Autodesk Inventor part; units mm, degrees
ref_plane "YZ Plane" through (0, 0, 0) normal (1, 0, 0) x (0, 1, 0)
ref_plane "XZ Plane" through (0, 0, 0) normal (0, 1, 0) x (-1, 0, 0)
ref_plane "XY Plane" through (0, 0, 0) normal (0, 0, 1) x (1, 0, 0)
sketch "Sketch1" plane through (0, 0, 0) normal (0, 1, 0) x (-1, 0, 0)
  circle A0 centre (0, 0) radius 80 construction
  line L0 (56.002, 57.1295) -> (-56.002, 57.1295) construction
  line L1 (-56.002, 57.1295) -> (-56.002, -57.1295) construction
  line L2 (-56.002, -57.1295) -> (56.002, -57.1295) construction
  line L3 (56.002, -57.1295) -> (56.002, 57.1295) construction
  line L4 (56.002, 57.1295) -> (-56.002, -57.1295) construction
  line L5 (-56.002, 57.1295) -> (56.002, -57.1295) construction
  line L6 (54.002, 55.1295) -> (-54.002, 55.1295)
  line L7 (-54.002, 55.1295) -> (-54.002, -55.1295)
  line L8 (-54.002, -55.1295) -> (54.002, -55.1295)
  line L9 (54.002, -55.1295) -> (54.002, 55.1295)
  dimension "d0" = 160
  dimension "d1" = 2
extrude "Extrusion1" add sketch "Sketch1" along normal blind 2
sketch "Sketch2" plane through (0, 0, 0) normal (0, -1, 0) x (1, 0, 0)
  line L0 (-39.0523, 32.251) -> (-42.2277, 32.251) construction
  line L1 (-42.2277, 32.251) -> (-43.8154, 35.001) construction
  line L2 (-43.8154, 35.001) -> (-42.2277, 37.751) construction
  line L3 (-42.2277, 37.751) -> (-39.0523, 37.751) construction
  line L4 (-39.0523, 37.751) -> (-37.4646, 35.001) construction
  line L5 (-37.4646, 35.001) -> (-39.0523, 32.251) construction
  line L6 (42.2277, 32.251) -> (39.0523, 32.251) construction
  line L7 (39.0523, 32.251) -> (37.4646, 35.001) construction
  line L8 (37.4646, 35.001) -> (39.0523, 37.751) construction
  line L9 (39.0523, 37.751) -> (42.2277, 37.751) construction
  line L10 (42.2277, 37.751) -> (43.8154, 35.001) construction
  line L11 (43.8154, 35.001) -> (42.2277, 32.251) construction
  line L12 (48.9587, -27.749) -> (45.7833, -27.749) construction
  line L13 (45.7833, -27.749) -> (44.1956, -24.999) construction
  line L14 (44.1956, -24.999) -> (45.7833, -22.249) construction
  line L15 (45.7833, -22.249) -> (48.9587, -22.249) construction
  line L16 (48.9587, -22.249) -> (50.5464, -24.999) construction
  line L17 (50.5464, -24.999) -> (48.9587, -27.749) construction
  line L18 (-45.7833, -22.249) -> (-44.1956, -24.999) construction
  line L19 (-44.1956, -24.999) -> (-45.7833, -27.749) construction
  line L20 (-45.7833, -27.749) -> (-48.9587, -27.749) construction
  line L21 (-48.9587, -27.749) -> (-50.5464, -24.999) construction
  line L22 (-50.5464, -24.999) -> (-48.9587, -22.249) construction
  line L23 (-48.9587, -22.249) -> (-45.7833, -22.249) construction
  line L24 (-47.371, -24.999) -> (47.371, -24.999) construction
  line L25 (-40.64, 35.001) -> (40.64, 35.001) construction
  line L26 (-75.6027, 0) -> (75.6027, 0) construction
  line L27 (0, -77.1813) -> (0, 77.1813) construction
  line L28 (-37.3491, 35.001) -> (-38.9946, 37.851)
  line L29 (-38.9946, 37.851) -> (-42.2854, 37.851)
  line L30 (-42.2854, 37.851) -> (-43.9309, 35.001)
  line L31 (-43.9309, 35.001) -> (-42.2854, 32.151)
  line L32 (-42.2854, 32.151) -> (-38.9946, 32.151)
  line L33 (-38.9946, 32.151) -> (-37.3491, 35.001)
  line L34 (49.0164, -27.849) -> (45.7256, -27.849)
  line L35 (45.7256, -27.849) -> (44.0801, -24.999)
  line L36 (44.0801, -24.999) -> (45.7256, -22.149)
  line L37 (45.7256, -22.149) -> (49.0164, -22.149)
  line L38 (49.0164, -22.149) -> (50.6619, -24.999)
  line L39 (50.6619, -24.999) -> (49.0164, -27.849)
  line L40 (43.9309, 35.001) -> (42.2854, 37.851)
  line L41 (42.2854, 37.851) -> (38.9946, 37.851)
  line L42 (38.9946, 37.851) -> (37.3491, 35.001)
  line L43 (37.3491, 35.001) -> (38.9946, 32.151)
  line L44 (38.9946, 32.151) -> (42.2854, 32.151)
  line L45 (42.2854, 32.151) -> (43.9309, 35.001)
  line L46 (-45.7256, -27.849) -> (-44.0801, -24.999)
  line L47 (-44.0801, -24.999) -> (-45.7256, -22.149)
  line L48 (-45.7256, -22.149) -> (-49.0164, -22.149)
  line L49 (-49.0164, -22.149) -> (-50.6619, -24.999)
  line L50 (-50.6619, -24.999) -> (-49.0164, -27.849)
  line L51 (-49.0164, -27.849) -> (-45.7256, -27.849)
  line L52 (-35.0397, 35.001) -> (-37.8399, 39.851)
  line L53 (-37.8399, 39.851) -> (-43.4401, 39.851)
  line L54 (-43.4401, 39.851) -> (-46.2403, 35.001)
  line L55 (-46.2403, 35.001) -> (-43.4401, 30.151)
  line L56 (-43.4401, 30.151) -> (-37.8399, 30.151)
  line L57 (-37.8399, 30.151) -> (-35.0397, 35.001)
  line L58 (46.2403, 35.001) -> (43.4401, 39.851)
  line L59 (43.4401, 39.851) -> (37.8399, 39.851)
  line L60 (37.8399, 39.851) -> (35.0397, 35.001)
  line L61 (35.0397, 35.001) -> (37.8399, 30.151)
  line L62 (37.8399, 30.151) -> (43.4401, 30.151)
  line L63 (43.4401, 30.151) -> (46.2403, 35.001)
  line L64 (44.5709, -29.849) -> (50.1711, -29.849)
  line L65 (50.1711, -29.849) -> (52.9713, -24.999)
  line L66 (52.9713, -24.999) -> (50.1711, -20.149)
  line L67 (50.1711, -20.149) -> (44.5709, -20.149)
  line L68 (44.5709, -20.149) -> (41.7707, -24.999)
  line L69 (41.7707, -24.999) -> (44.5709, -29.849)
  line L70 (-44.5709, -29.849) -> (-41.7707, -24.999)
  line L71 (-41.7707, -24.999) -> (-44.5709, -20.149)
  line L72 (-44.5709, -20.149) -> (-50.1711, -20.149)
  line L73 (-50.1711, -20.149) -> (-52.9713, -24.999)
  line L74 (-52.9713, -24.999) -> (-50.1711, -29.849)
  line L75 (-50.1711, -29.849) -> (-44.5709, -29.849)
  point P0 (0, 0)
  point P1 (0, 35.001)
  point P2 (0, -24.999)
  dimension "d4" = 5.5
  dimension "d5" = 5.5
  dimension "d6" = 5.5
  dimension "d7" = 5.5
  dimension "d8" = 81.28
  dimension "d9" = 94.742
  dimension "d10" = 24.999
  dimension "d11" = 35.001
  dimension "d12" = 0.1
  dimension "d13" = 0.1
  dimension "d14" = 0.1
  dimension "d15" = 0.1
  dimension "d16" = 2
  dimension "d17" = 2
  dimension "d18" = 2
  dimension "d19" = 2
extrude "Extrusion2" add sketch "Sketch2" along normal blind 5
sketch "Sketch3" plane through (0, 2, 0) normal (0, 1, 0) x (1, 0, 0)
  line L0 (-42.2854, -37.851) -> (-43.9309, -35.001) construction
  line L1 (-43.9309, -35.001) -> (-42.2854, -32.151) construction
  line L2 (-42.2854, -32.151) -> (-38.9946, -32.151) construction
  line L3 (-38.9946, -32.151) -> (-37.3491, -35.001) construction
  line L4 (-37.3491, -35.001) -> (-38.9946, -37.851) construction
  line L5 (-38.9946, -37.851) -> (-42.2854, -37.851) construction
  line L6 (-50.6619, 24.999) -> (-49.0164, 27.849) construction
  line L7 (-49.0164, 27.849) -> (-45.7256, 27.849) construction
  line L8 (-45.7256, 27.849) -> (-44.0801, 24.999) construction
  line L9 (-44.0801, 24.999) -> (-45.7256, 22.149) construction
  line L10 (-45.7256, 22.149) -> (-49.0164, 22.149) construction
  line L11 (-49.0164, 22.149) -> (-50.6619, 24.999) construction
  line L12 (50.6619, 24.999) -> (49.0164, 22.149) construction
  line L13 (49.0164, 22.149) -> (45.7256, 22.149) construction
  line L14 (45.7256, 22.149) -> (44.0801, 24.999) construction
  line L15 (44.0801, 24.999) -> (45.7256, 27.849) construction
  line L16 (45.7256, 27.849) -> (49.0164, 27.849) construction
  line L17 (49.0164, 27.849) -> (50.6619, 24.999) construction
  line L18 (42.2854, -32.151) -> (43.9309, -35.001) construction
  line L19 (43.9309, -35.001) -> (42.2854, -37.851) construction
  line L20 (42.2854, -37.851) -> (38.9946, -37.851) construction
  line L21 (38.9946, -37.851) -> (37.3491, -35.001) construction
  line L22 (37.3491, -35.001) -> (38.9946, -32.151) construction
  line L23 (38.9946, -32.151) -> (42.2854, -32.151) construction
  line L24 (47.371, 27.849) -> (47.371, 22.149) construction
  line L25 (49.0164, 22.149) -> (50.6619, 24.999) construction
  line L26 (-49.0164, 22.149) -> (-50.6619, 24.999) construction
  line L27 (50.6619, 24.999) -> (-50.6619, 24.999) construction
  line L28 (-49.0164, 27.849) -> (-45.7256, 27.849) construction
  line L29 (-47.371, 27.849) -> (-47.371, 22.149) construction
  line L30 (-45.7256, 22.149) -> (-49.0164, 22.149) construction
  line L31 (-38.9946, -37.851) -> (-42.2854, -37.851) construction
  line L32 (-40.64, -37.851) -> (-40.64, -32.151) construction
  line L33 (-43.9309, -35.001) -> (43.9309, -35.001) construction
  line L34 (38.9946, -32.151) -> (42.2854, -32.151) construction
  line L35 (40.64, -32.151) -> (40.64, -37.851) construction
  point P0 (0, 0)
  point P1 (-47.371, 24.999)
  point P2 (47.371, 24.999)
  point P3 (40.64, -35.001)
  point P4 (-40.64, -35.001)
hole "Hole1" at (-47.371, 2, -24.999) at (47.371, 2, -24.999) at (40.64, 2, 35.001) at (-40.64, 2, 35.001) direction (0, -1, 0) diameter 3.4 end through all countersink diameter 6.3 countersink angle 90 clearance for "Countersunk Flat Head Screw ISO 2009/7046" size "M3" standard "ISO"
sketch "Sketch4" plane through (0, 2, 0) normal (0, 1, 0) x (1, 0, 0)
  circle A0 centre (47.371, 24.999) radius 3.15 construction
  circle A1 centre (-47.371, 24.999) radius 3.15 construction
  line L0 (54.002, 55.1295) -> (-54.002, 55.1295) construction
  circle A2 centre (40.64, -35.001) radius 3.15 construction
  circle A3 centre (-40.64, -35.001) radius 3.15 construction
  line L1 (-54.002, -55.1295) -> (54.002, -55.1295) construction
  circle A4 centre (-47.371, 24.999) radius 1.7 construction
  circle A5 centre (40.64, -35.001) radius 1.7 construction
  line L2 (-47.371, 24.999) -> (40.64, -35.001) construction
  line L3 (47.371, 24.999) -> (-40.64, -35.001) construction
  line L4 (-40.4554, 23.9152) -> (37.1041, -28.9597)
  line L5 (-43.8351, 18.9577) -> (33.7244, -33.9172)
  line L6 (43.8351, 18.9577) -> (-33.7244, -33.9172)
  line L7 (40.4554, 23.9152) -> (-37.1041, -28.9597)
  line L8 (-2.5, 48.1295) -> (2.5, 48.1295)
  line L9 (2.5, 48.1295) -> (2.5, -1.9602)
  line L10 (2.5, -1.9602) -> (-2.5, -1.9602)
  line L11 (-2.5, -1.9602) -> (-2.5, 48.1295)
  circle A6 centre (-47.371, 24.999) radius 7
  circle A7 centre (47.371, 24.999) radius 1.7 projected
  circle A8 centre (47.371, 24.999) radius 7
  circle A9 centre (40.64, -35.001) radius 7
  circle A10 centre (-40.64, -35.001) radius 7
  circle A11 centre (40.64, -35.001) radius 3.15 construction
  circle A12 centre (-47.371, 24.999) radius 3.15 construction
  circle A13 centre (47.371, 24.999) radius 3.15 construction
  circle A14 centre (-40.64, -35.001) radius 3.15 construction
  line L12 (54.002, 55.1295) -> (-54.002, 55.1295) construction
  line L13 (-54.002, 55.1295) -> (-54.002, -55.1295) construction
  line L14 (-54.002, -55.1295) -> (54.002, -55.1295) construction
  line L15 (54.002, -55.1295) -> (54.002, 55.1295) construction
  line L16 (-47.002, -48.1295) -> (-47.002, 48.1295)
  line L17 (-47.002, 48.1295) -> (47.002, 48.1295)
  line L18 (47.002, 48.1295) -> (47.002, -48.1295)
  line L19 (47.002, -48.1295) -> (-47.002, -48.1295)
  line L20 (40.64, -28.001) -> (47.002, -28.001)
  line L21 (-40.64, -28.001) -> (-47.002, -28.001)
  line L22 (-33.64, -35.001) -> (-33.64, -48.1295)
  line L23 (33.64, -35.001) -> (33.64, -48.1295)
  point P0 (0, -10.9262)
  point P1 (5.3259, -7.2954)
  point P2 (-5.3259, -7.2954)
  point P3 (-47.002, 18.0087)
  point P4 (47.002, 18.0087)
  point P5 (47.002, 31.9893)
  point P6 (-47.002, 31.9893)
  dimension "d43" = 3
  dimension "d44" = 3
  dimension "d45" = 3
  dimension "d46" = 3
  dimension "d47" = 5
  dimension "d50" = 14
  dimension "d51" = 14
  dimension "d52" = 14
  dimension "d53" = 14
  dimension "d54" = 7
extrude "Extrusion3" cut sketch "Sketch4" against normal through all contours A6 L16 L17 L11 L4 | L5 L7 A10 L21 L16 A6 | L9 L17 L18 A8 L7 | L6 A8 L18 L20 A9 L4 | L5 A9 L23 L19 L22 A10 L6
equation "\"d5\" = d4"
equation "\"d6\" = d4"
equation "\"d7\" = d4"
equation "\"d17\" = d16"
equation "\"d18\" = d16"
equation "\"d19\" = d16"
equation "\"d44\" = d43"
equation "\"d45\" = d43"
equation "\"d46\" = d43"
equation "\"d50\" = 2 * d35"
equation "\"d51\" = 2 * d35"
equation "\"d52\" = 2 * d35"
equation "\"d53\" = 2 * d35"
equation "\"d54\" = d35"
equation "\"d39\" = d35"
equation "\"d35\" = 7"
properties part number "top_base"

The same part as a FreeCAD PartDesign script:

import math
import FreeCAD as App
import Part
import Sketcher
from FreeCAD import Vector
Q = App.Units.Quantity


def add_polygon(sketch, points):
    """Adds a closed chain of lines whose ends are joined by coincident constraints."""
    first, n = sketch.GeometryCount, len(points)
    for a, b in zip(points, points[1:] + points[:1]):
        sketch.addGeometry(Part.LineSegment(App.Vector(*a, 0), App.Vector(*b, 0)), False)
    for i in range(n):
        sketch.addConstraint(Sketcher.Constraint("Coincident", first + i, 2, first + (i + 1) % n, 1))

doc = App.newDocument("Part")
body = doc.addObject("PartDesign::Body", "Body")

sketch1 = body.newObject("Sketcher::SketchObject", "Sketch")
sketch1.AttachmentSupport = (doc.getObject("XZ_Plane"), [""])
sketch1.MapMode = "FlatFace"
add_polygon(sketch1, [(-54.002, -55.1295), (-54.002, 55.1295), (54.002, 55.1295), (54.002, -55.1295)])
sketch1.addConstraint(Sketcher.Constraint("Vertical", 0))
sketch1.addConstraint(Sketcher.Constraint("Horizontal", 1))
sketch1.addConstraint(Sketcher.Constraint("Vertical", 2))
sketch1.addConstraint(Sketcher.Constraint("Horizontal", 3))
sketch1.addConstraint(Sketcher.Constraint("Symmetric", 0, 2, 2, 2, -1, 1))
sketch1.addConstraint(Sketcher.Constraint("DistanceX", 1, 1, 1, 2, 108.004))
sketch1.addConstraint(Sketcher.Constraint("DistanceY", 0, 1, 0, 2, 110.259))
pad1 = body.newObject("PartDesign::Pad", "Pad")
pad1.Profile = sketch1
pad1.Length = 2
pad1.Reversed = True

sketch2 = body.newObject("Sketcher::SketchObject", "Sketch001")
sketch2.AttachmentSupport = (doc.getObject("XZ_Plane"), [""])
sketch2.MapMode = "FlatFace"
add_polygon(sketch2, [(-37.8399, 30.151), (-35.0397, 35.001), (-37.8399, 39.851), (-43.4401, 39.851), (-46.2403, 35.001), (-43.4401, 30.151)])
add_polygon(sketch2, [(-38.9946, 37.851), (-37.3491, 35.001), (-38.9946, 32.151), (-42.2854, 32.151), (-43.9309, 35.001), (-42.2854, 37.851)])
add_polygon(sketch2, [(43.4401, 30.151), (46.2403, 35.001), (43.4401, 39.851), (37.8399, 39.851), (35.0397, 35.001), (37.8399, 30.151)])
add_polygon(sketch2, [(42.2854, 37.851), (43.9309, 35.001), (42.2854, 32.151), (38.9946, 32.151), (37.3491, 35.001), (38.9946, 37.851)])
add_polygon(sketch2, [(41.7707, -24.999), (44.5709, -29.849), (50.1711, -29.849), (52.9713, -24.999), (50.1711, -20.149), (44.5709, -20.149)])
add_polygon(sketch2, [(50.6619, -24.999), (49.0164, -27.849), (45.7256, -27.849), (44.0801, -24.999), (45.7256, -22.149), (49.0164, -22.149)])
add_polygon(sketch2, [(-50.1711, -29.849), (-44.5709, -29.849), (-41.7707, -24.999), (-44.5709, -20.149), (-50.1711, -20.149), (-52.9713, -24.999)])
add_polygon(sketch2, [(-44.0801, -24.999), (-45.7256, -27.849), (-49.0164, -27.849), (-50.6619, -24.999), (-49.0164, -22.149), (-45.7256, -22.149)])
sketch2.addConstraint(Sketcher.Constraint("Horizontal", 2))
sketch2.addConstraint(Sketcher.Constraint("Horizontal", 5))
sketch2.addConstraint(Sketcher.Constraint("Horizontal", 8))
sketch2.addConstraint(Sketcher.Constraint("Horizontal", 11))
sketch2.addConstraint(Sketcher.Constraint("Horizontal", 14))
sketch2.addConstraint(Sketcher.Constraint("Horizontal", 17))
sketch2.addConstraint(Sketcher.Constraint("Horizontal", 20))
sketch2.addConstraint(Sketcher.Constraint("Horizontal", 23))
sketch2.addConstraint(Sketcher.Constraint("Horizontal", 25))
sketch2.addConstraint(Sketcher.Constraint("Horizontal", 28))
sketch2.addConstraint(Sketcher.Constraint("Horizontal", 31))
sketch2.addConstraint(Sketcher.Constraint("Horizontal", 34))
sketch2.addConstraint(Sketcher.Constraint("Horizontal", 36))
sketch2.addConstraint(Sketcher.Constraint("Horizontal", 39))
sketch2.addConstraint(Sketcher.Constraint("Horizontal", 43))
sketch2.addConstraint(Sketcher.Constraint("Horizontal", 46))
sketch2.addConstraint(Sketcher.Constraint("Symmetric", 3, 2, 12, 2, -2))
sketch2.addConstraint(Sketcher.Constraint("Symmetric", 2, 2, 13, 2, -2))
sketch2.addConstraint(Sketcher.Constraint("Symmetric", 0, 2, 15, 2, -2))
sketch2.addConstraint(Sketcher.Constraint("Symmetric", 5, 2, 16, 2, -2))
sketch2.addConstraint(Sketcher.Constraint("Symmetric", 9, 2, 18, 2, -2))
sketch2.addConstraint(Sketcher.Constraint("Symmetric", 8, 2, 19, 2, -2))
sketch2.addConstraint(Sketcher.Constraint("Symmetric", 6, 2, 21, 2, -2))
sketch2.addConstraint(Sketcher.Constraint("Symmetric", 11, 2, 22, 2, -2))
sketch2.addConstraint(Sketcher.Constraint("Symmetric", 24, 2, 36, 2, -2))
sketch2.addConstraint(Sketcher.Constraint("Symmetric", 29, 2, 37, 2, -2))
sketch2.addConstraint(Sketcher.Constraint("Symmetric", 28, 2, 38, 2, -2))
sketch2.addConstraint(Sketcher.Constraint("Symmetric", 26, 2, 40, 2, -2))
sketch2.addConstraint(Sketcher.Constraint("Symmetric", 31, 2, 42, 2, -2))
sketch2.addConstraint(Sketcher.Constraint("Symmetric", 35, 2, 44, 2, -2))
sketch2.addConstraint(Sketcher.Constraint("Symmetric", 34, 2, 45, 2, -2))
sketch2.addConstraint(Sketcher.Constraint("Symmetric", 32, 2, 47, 2, -2))
sketch2.addConstraint(Sketcher.Constraint("Parallel", 0, 3))
sketch2.addConstraint(Sketcher.Constraint("Parallel", 1, 4))
sketch2.addConstraint(Sketcher.Constraint("Parallel", 4, 6))
sketch2.addConstraint(Sketcher.Constraint("Parallel", 3, 7))
sketch2.addConstraint(Sketcher.Constraint("Parallel", 6, 9))
sketch2.addConstraint(Sketcher.Constraint("Parallel", 7, 10))
sketch2.addConstraint(Sketcher.Constraint("Parallel", 10, 12))
sketch2.addConstraint(Sketcher.Constraint("Parallel", 9, 13))
sketch2.addConstraint(Sketcher.Constraint("Parallel", 12, 15))
sketch2.addConstraint(Sketcher.Constraint("Parallel", 16, 18))
sketch2.addConstraint(Sketcher.Constraint("Parallel", 18, 21))
sketch2.addConstraint(Sketcher.Constraint("Parallel", 21, 24))
sketch2.addConstraint(Sketcher.Constraint("Parallel", 22, 26))
sketch2.addConstraint(Sketcher.Constraint("Parallel", 24, 27))
sketch2.addConstraint(Sketcher.Constraint("Parallel", 26, 29))
sketch2.addConstraint(Sketcher.Constraint("Parallel", 29, 30))
sketch2.addConstraint(Sketcher.Constraint("Parallel", 27, 32))
sketch2.addConstraint(Sketcher.Constraint("Parallel", 30, 33))
sketch2.addConstraint(Sketcher.Constraint("Parallel", 32, 35))
sketch2.addConstraint(Sketcher.Constraint("Parallel", 37, 40))
sketch2.addConstraint(Sketcher.Constraint("Parallel", 38, 41))
sketch2.addConstraint(Sketcher.Constraint("Parallel", 41, 44))
sketch2.addConstraint(Sketcher.Constraint("Parallel", 44, 47))
sketch2.addConstraint(Sketcher.Constraint("Horizontal", 0, 2, 3, 2))
sketch2.addConstraint(Sketcher.Constraint("Horizontal", 3, 2, 6, 2))
sketch2.addConstraint(Sketcher.Constraint("Horizontal", 6, 2, 9, 2))
sketch2.addConstraint(Sketcher.Constraint("Horizontal", 26, 2, 29, 2))
sketch2.addConstraint(Sketcher.Constraint("Horizontal", 29, 2, 32, 2))
sketch2.addConstraint(Sketcher.Constraint("Horizontal", 32, 2, 35, 2))
sketch2.addConstraint(Sketcher.Constraint("Vertical", 2, 2, 4, 2))
sketch2.addConstraint(Sketcher.Constraint("Vertical", 8, 2, 10, 2))
sketch2.addConstraint(Sketcher.Constraint("Vertical", 25, 2, 27, 2))
sketch2.addConstraint(Sketcher.Constraint("Vertical", 31, 2, 33, 2))
sketch2.addConstraint(Sketcher.Constraint("Equal", 17, 25))
sketch2.addConstraint(Sketcher.Constraint("Equal", 23, 31))
sketch2.addConstraint(Sketcher.Constraint("Equal", 16, 24))
sketch2.addConstraint(Sketcher.Constraint("Equal", 22, 30))
sketch2.addConstraint(Sketcher.Constraint("DistanceY", 5, 2, 7, 2, 2.0))
sketch2.addConstraint(Sketcher.Constraint("Angle", 0, Q("59.9995 deg")))
sketch2.addConstraint(Sketcher.Constraint("DistanceX", 0, 2, 12, 2, 81.28))
sketch2.addConstraint(Sketcher.Constraint("DistanceY", -1, 1, 0, 2, 35.001))
sketch2.addConstraint(Sketcher.Constraint("DistanceY", 26, 2, -1, 1, 24.999))
sketch2.addConstraint(Sketcher.Constraint("DistanceY", 4, 2, 2, 2, 9.7))
sketch2.addConstraint(Sketcher.Constraint("DistanceX", 1, 2, -1, 1, 37.84))
sketch2.addConstraint(Sketcher.Constraint("DistanceX", -1, 1, 32, 2, 44.08))
sketch2.addConstraint(Sketcher.Constraint("DistanceX", 18, 2, 24, 2, 0.64))
sketch2.addConstraint(Sketcher.Constraint("DistanceX", 8, 2, 8, 1, 3.2908))
sketch2.addConstraint(Sketcher.Constraint("DistanceX", 6, 2, -1, 1, 37.349))
pad2 = body.newObject("PartDesign::Pad", "Pad001")
pad2.Profile = sketch2
pad2.Length = 5

sketch3 = body.newObject("Sketcher::SketchObject", "Sketch002")
sketch3.AttachmentSupport = (doc.getObject("XZ_Plane"), [""])
sketch3.MapMode = "FlatFace"
sketch3.AttachmentOffset = App.Placement(Vector(0, 0, -2), App.Rotation())
sketch3.addGeometry(Part.Circle(Vector(-47.371, -24.999, 0), Vector(0, 0, 1), 1.7), False)
sketch3.addGeometry(Part.Circle(Vector(47.371, -24.999, 0), Vector(0, 0, 1), 1.7), False)
sketch3.addGeometry(Part.Circle(Vector(40.64, 35.001, 0), Vector(0, 0, 1), 1.7), False)
sketch3.addGeometry(Part.Circle(Vector(-40.64, 35.001, 0), Vector(0, 0, 1), 1.7), False)
sketch3.addConstraint(Sketcher.Constraint("Equal", 0, 1))
sketch3.addConstraint(Sketcher.Constraint("Equal", 1, 2))
sketch3.addConstraint(Sketcher.Constraint("Equal", 2, 3))
sketch3.addConstraint(Sketcher.Constraint("Symmetric", 0, 3, 1, 3, -2))
sketch3.addConstraint(Sketcher.Constraint("Symmetric", 2, 3, 3, 3, -2))
sketch3.addConstraint(Sketcher.Constraint("Diameter", 0, 3.4))
sketch3.addConstraint(Sketcher.Constraint("DistanceY", 1, 3, 2, 3, 60.0))
sketch3.addConstraint(Sketcher.Constraint("DistanceX", -1, 1, 2, 3, 40.64))
sketch3.addConstraint(Sketcher.Constraint("DistanceX", 0, 3, -1, 1, 47.371))
sketch3.addConstraint(Sketcher.Constraint("DistanceY", 0, 3, -1, 1, 24.999))
doc.recompute()
hole = body.newObject("PartDesign::Hole", "Hole")
hole.Profile = sketch3
hole.ThreadType = "None"
hole.Diameter = 3.4
hole.DepthType = "ThroughAll"
hole.HoleCutType = "Countersink"
hole.HoleCutDiameter = 6.3
hole.HoleCutCountersinkAngle = 90
hole.Reversed = True

sketch4 = body.newObject("Sketcher::SketchObject", "Sketch003")
sketch4.AttachmentSupport = (doc.getObject("XZ_Plane"), [""])
sketch4.MapMode = "FlatFace"
sketch4.AttachmentOffset = App.Placement(Vector(0, 0, -2), App.Rotation())
sketch4.addGeometry(Part.ArcOfCircle(Part.Circle(Vector(-47.371, -24.999, 0), Vector(0, 0, 1), 7), math.radians(-86.978293), math.radians(8.906841)), False)
sketch4.addGeometry(Part.LineSegment(Vector(-40.4554, -23.9152, 0), Vector(-2.500029, 1.960243, 0)), False)
sketch4.addGeometry(Part.LineSegment(Vector(-2.5, 1.9602, 0), Vector(-2.5, -48.1295, 0)), False)
sketch4.addGeometry(Part.LineSegment(Vector(-2.5, -48.1295, 0), Vector(-47.002, -48.1295, 0)), False)
sketch4.addGeometry(Part.LineSegment(Vector(-47.002, -48.1295, 0), Vector(-47.002, -31.989267, 0)), False)
sketch4.addGeometry(Part.LineSegment(Vector(-5.325802, 7.295374, 0), Vector(-43.8351, -18.9577, 0)), False)
sketch4.addGeometry(Part.ArcOfCircle(Part.Circle(Vector(-47.371, -24.999, 0), Vector(0, 0, 1), 7), math.radians(59.660076), math.radians(86.978293)), False)
sketch4.addGeometry(Part.LineSegment(Vector(-47.002, -18.008733, 0), Vector(-47.002, 28.001, 0)), False)
sketch4.addGeometry(Part.LineSegment(Vector(-47.002, 28.001, 0), Vector(-40.64, 28.001, 0)), False)
sketch4.addGeometry(Part.ArcOfCircle(Part.Circle(Vector(-40.64, 35.001, 0), Vector(0, 0, 1), 7), math.radians(-90), math.radians(-59.660076)), False)
sketch4.addGeometry(Part.LineSegment(Vector(-37.1041, 28.9597, 0), Vector(-5.325802, 7.295374, 0)), False)
sketch4.addGeometry(Part.LineSegment(Vector(2.5, -48.1295, 0), Vector(2.5, 1.9602, 0)), False)
sketch4.addGeometry(Part.LineSegment(Vector(2.500029, 1.960243, 0), Vector(40.4554, -23.9152, 0)), False)
sketch4.addGeometry(Part.ArcOfCircle(Part.Circle(Vector(47.371, -24.999, 0), Vector(0, 0, 1), 7), math.radians(171.093159), math.radians(266.978293)), False)
sketch4.addGeometry(Part.LineSegment(Vector(47.002, -31.989267, 0), Vector(47.002, -48.1295, 0)), False)
sketch4.addGeometry(Part.LineSegment(Vector(47.002, -48.1295, 0), Vector(2.5, -48.1295, 0)), False)
sketch4.addGeometry(Part.LineSegment(Vector(43.8351, -18.9577, 0), Vector(5.325802, 7.295374, 0)), False)
sketch4.addGeometry(Part.LineSegment(Vector(5.325802, 7.295374, 0), Vector(37.1041, 28.9597, 0)), False)
sketch4.addGeometry(Part.ArcOfCircle(Part.Circle(Vector(40.64, 35.001, 0), Vector(0, 0, 1), 7), math.radians(-120.339924), math.radians(-90)), False)
sketch4.addGeometry(Part.LineSegment(Vector(40.64, 28.001, 0), Vector(47.002, 28.001, 0)), False)
sketch4.addGeometry(Part.LineSegment(Vector(47.002, 28.001, 0), Vector(47.002, -18.008733, 0)), False)
sketch4.addGeometry(Part.ArcOfCircle(Part.Circle(Vector(47.371, -24.999, 0), Vector(0, 0, 1), 7), math.radians(93.021707), math.radians(120.339924)), False)
sketch4.addGeometry(Part.LineSegment(Vector(33.7244, 33.9172, 0), Vector(0, 10.926151, 0)), False)
sketch4.addGeometry(Part.LineSegment(Vector(0, 10.926151, 0), Vector(-33.7244, 33.9172, 0)), False)
sketch4.addGeometry(Part.ArcOfCircle(Part.Circle(Vector(-40.64, 35.001, 0), Vector(0, 0, 1), 7), math.radians(-8.906841), math.radians(0)), False)
sketch4.addGeometry(Part.LineSegment(Vector(-33.64, 35.001, 0), Vector(-33.64, 48.1295, 0)), False)
sketch4.addGeometry(Part.LineSegment(Vector(-33.64, 48.1295, 0), Vector(33.64, 48.1295, 0)), False)
sketch4.addGeometry(Part.LineSegment(Vector(33.64, 48.1295, 0), Vector(33.64, 35.001, 0)), False)
sketch4.addGeometry(Part.ArcOfCircle(Part.Circle(Vector(40.64, 35.001, 0), Vector(0, 0, 1), 7), math.radians(180), math.radians(188.906841)), False)
sketch4.addConstraint(Sketcher.Constraint("Coincident", 0, 2, 1, 1))
sketch4.addConstraint(Sketcher.Constraint("Coincident", 1, 2, 2, 1))
sketch4.addConstraint(Sketcher.Constraint("Coincident", 2, 2, 3, 1))
sketch4.addConstraint(Sketcher.Constraint("Coincident", 3, 2, 4, 1))
sketch4.addConstraint(Sketcher.Constraint("Coincident", 4, 2, 0, 1))
sketch4.addConstraint(Sketcher.Constraint("Coincident", 5, 2, 6, 1))
sketch4.addConstraint(Sketcher.Constraint("Coincident", 6, 2, 7, 1))
sketch4.addConstraint(Sketcher.Constraint("Coincident", 7, 2, 8, 1))
sketch4.addConstraint(Sketcher.Constraint("Tangent", 8, 2, 9, 1))
sketch4.addConstraint(Sketcher.Constraint("Coincident", 9, 2, 10, 1))
sketch4.addConstraint(Sketcher.Constraint("Coincident", 10, 2, 5, 1))
sketch4.addConstraint(Sketcher.Constraint("Coincident", 11, 2, 12, 1))
sketch4.addConstraint(Sketcher.Constraint("Coincident", 12, 2, 13, 1))
sketch4.addConstraint(Sketcher.Constraint("Coincident", 13, 2, 14, 1))
sketch4.addConstraint(Sketcher.Constraint("Coincident", 14, 2, 15, 1))
sketch4.addConstraint(Sketcher.Constraint("Coincident", 15, 2, 11, 1))
sketch4.addConstraint(Sketcher.Constraint("Coincident", 16, 2, 17, 1))
sketch4.addConstraint(Sketcher.Constraint("Coincident", 17, 2, 18, 1))
sketch4.addConstraint(Sketcher.Constraint("Tangent", 18, 2, 19, 1))
sketch4.addConstraint(Sketcher.Constraint("Coincident", 19, 2, 20, 1))
sketch4.addConstraint(Sketcher.Constraint("Coincident", 20, 2, 21, 1))
sketch4.addConstraint(Sketcher.Constraint("Coincident", 21, 2, 16, 1))
sketch4.addConstraint(Sketcher.Constraint("Coincident", 22, 2, 23, 1))
sketch4.addConstraint(Sketcher.Constraint("Coincident", 23, 2, 24, 1))
sketch4.addConstraint(Sketcher.Constraint("Tangent", 24, 2, 25, 1))
sketch4.addConstraint(Sketcher.Constraint("Coincident", 25, 2, 26, 1))
sketch4.addConstraint(Sketcher.Constraint("Coincident", 26, 2, 27, 1))
sketch4.addConstraint(Sketcher.Constraint("Tangent", 27, 2, 28, 1))
sketch4.addConstraint(Sketcher.Constraint("Coincident", 28, 2, 22, 1))
sketch4.addConstraint(Sketcher.Constraint("Vertical", 2))
sketch4.addConstraint(Sketcher.Constraint("Horizontal", 3))
sketch4.addConstraint(Sketcher.Constraint("Vertical", 4))
sketch4.addConstraint(Sketcher.Constraint("Vertical", 7))
sketch4.addConstraint(Sketcher.Constraint("Horizontal", 8))
sketch4.addConstraint(Sketcher.Constraint("Vertical", 11))
sketch4.addConstraint(Sketcher.Constraint("Vertical", 14))
sketch4.addConstraint(Sketcher.Constraint("Horizontal", 15))
sketch4.addConstraint(Sketcher.Constraint("Horizontal", 19))
sketch4.addConstraint(Sketcher.Constraint("Vertical", 20))
sketch4.addConstraint(Sketcher.Constraint("Vertical", 25))
sketch4.addConstraint(Sketcher.Constraint("Horizontal", 26))
sketch4.addConstraint(Sketcher.Constraint("Vertical", 27))
sketch4.addConstraint(Sketcher.Constraint("Coincident", 6, 3, 0, 3))
sketch4.addConstraint(Sketcher.Constraint("Coincident", 21, 3, 13, 3))
sketch4.addConstraint(Sketcher.Constraint("Coincident", 24, 3, 9, 3))
sketch4.addConstraint(Sketcher.Constraint("Coincident", 28, 3, 18, 3))
sketch4.addConstraint(Sketcher.Constraint("Equal", 0, 6))
sketch4.addConstraint(Sketcher.Constraint("Equal", 6, 9))
sketch4.addConstraint(Sketcher.Constraint("Equal", 9, 13))
sketch4.addConstraint(Sketcher.Constraint("Equal", 13, 18))
sketch4.addConstraint(Sketcher.Constraint("Equal", 18, 21))
sketch4.addConstraint(Sketcher.Constraint("Equal", 21, 24))
sketch4.addConstraint(Sketcher.Constraint("Equal", 24, 28))
sketch4.addConstraint(Sketcher.Constraint("Symmetric", 0, 3, 13, 3, -2))
sketch4.addConstraint(Sketcher.Constraint("Symmetric", 9, 3, 18, 3, -2))
sketch4.addConstraint(Sketcher.Constraint("Symmetric", 1, 2, 11, 2, -2))
sketch4.addConstraint(Sketcher.Constraint("Symmetric", 3, 2, 14, 2, -2))
sketch4.addConstraint(Sketcher.Constraint("Symmetric", 10, 2, 16, 2, -2))
sketch4.addConstraint(Sketcher.Constraint("PointOnObject", 22, 2, -2))
sketch4.addConstraint(Sketcher.Constraint("Parallel", 1, 5))
sketch4.addConstraint(Sketcher.Constraint("Parallel", 10, 12))
sketch4.addConstraint(Sketcher.Constraint("Parallel", 12, 16))
sketch4.addConstraint(Sketcher.Constraint("Parallel", 5, 17))
sketch4.addConstraint(Sketcher.Constraint("Parallel", 17, 22))
sketch4.addConstraint(Sketcher.Constraint("Parallel", 16, 23))
sketch4.addConstraint(Sketcher.Constraint("Horizontal", 0, 2, 12, 2))
sketch4.addConstraint(Sketcher.Constraint("Horizontal", 6, 2, 20, 2))
sketch4.addConstraint(Sketcher.Constraint("Vertical", 4, 2, 6, 2))
sketch4.addConstraint(Sketcher.Constraint("Radius", 0, 7.0))
sketch4.addConstraint(Sketcher.Constraint("DistanceX", 1, 2, 11, 2, 5.0))
sketch4.addConstraint(Sketcher.Constraint("DistanceY", 0, 3, 9, 3, 60.0))
sketch4.addConstraint(Sketcher.Constraint("DistanceX", 26, 1, 26, 2, 67.28))
sketch4.addConstraint(Sketcher.Constraint("DistanceX", 3, 2, 3, 1, 44.502))
sketch4.addConstraint(Sketcher.Constraint("DistanceX", 10, 2, 17, 2, 42.43))
sketch4.addConstraint(Sketcher.Constraint("DistanceY", 2, 2, 2, 1, 50.0897))
sketch4.addConstraint(Sketcher.Constraint("DistanceY", 4, 1, 4, 2, 16.1402))
sketch4.addConstraint(Sketcher.Constraint("DistanceY", 7, 1, 7, 2, 46.0097))
sketch4.addConstraint(Sketcher.Constraint("DistanceY", 25, 1, 25, 2, 13.1285))
sketch4.addConstraint(Sketcher.Constraint("DistanceY", 0, 3, -1, 1, 24.999))
sketch4.addConstraint(Sketcher.Constraint("DistanceX", 5, 2, -1, 1, 43.835))
sketch4.addConstraint(Sketcher.Constraint("DistanceX", 9, 2, -1, 1, 37.104))
sketch4.addConstraint(Sketcher.Constraint("DistanceY", 1, 2, 22, 2, 8.966))
pocket1 = body.newObject("PartDesign::Pocket", "Pocket")
pocket1.Profile = sketch4
pocket1.Type = "ThroughAll"
pocket1.Reversed = True

doc.recompute()
